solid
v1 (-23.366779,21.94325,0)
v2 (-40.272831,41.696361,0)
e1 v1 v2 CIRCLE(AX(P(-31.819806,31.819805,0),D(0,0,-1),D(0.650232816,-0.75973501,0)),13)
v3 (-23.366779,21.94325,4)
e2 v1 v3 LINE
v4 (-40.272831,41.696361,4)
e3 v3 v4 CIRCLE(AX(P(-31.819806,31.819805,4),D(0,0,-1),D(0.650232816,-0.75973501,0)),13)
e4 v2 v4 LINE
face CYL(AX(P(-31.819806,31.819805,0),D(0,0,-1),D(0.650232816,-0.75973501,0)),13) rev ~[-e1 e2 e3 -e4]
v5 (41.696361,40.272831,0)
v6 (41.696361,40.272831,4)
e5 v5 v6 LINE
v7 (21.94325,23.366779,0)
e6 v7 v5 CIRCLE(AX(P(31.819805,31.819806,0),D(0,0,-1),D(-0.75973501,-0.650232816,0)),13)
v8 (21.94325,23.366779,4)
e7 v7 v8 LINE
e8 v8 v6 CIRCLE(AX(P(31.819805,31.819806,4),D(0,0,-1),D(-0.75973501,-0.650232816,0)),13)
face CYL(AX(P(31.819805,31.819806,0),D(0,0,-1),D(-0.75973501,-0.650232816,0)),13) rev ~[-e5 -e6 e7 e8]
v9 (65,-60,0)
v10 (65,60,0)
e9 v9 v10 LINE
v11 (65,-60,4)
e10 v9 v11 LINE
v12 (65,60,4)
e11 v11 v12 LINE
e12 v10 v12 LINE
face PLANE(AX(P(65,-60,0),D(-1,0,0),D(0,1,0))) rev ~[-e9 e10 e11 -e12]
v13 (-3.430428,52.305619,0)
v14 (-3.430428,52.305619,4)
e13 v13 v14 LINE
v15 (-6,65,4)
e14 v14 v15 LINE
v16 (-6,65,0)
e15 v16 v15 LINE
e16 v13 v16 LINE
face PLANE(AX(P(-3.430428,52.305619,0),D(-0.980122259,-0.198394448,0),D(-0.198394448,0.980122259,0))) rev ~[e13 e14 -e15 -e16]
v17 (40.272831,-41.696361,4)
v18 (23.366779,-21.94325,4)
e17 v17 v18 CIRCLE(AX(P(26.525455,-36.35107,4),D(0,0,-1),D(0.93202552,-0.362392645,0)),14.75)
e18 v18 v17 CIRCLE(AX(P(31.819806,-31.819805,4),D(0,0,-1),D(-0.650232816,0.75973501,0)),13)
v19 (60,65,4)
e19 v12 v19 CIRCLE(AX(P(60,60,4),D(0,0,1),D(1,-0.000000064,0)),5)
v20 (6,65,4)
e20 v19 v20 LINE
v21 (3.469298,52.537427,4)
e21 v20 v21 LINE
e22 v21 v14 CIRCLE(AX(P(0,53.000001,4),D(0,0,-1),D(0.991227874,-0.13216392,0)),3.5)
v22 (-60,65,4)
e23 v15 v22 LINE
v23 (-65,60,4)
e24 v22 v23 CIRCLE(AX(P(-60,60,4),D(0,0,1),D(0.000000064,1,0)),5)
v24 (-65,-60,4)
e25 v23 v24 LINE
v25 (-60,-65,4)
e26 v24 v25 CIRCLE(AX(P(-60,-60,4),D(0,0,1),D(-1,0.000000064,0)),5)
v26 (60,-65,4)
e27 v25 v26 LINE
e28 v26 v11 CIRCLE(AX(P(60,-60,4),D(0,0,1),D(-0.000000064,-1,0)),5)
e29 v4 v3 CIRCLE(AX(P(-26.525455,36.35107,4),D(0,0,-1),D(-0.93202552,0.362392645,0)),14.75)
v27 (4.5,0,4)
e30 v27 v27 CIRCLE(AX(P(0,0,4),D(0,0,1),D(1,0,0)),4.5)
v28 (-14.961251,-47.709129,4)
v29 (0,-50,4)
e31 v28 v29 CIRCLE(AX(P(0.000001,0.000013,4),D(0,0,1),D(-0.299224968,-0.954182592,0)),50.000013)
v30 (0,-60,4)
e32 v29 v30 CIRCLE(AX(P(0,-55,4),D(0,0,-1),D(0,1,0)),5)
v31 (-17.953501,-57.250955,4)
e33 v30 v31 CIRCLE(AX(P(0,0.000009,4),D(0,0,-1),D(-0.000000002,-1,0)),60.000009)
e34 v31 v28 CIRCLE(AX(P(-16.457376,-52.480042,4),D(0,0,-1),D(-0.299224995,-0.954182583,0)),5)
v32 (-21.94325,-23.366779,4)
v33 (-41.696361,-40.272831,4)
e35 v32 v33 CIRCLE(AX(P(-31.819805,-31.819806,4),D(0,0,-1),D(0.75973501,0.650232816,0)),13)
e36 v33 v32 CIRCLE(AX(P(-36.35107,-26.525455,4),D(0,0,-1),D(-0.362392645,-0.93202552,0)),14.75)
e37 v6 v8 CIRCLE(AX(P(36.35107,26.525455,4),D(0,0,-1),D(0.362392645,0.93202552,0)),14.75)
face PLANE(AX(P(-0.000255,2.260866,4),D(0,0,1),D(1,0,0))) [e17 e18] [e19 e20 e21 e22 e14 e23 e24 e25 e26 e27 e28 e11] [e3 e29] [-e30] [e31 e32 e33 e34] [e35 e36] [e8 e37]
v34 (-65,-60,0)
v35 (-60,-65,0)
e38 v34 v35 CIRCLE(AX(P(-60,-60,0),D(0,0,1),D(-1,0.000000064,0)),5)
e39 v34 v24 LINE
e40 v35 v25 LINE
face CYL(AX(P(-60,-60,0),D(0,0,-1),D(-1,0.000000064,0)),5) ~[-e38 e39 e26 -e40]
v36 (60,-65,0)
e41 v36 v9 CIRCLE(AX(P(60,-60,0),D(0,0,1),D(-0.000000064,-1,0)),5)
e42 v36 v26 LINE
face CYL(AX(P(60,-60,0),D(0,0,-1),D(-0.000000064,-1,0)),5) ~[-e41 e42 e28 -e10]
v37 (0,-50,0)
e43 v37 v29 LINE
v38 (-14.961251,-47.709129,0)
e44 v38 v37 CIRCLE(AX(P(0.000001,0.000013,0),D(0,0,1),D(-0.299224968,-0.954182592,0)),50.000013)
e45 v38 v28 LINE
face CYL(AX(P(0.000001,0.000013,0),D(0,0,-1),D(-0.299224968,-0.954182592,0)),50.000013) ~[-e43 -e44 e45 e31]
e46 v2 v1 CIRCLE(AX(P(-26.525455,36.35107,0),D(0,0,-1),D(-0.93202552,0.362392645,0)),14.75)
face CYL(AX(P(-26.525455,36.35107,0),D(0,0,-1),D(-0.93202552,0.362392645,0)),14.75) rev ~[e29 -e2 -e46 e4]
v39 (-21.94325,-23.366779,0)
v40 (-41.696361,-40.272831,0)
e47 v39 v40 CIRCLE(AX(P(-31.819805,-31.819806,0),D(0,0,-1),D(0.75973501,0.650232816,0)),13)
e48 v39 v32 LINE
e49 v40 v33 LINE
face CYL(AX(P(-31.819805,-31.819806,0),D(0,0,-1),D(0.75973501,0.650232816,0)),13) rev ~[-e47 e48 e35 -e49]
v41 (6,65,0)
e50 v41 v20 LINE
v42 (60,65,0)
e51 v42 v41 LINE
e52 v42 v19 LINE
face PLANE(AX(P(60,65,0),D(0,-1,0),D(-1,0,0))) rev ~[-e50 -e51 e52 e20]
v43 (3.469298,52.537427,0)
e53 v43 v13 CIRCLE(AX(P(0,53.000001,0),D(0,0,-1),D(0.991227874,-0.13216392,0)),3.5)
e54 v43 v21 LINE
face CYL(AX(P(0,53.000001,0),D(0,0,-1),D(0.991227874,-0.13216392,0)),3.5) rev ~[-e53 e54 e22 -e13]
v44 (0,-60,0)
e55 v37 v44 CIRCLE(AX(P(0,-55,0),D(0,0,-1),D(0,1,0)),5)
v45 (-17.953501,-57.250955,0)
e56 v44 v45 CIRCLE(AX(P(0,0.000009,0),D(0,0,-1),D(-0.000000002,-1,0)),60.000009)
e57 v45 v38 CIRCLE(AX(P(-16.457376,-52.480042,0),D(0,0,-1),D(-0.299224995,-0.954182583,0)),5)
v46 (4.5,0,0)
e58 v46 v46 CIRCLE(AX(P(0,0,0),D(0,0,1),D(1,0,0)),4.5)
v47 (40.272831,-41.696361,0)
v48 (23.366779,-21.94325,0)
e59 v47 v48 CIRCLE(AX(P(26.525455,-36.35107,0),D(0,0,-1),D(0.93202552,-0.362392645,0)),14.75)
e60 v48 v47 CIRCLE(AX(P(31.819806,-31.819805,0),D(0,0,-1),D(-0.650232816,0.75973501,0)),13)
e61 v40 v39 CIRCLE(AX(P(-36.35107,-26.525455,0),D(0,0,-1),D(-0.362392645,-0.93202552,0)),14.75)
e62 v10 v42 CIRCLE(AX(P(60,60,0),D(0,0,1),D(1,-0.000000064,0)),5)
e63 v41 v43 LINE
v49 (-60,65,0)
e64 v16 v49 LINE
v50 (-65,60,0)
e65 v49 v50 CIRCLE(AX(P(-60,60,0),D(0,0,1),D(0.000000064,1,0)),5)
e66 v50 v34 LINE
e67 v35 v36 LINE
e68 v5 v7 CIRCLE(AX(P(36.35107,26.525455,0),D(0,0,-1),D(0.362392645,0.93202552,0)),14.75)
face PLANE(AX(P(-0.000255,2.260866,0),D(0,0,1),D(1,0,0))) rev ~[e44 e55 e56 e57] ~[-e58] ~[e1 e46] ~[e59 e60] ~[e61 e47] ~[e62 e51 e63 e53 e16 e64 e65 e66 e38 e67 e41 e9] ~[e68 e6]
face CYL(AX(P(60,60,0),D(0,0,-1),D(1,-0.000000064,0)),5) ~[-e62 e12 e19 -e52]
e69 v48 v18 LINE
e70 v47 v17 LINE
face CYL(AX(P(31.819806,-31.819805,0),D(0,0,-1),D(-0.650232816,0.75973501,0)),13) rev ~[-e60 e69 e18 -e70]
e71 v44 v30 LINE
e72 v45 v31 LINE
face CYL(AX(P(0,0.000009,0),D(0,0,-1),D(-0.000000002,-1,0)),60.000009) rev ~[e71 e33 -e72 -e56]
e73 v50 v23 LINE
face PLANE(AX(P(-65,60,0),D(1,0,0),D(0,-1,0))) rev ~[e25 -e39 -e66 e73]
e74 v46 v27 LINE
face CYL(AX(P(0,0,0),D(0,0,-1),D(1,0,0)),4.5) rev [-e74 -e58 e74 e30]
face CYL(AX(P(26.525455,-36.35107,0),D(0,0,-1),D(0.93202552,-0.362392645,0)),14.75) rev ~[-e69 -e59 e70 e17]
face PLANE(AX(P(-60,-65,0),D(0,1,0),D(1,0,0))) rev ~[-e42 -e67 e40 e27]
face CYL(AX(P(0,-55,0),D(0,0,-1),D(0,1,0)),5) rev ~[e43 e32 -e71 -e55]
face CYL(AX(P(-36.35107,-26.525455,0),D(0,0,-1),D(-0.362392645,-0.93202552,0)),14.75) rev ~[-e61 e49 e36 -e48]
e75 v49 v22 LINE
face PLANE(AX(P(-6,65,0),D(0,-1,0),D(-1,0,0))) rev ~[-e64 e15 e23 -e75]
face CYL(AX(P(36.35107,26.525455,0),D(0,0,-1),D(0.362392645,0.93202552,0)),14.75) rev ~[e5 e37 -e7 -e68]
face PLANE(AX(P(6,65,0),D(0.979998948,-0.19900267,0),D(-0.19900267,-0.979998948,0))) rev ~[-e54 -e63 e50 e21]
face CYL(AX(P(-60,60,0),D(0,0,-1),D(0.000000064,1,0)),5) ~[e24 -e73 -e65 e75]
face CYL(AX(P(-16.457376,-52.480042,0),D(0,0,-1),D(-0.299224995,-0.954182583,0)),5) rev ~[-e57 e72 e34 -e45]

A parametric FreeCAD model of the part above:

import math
import FreeCAD as App
import Part
import Sketcher
Q = App.Units.Quantity

doc = App.newDocument("Part")
body = doc.addObject("PartDesign::Body", "Body")

# Sketch on XY plane
sketch1 = body.newObject("Sketcher::SketchObject", "Sketch")
sketch1.AttachmentSupport = (doc.getObject("XY_Plane"), [""])
sketch1.MapMode = "FlatFace"
sketch1.addGeometry([
    Part.LineSegment(App.Vector(-6, 65, 0), App.Vector(-60, 65, 0)),  # 0
    Part.ArcOfCircle(Part.Circle(App.Vector(-60, 60, 0), App.Vector(0, 0, 1), 5), math.radians(90), math.radians(180)),  # 1
    Part.LineSegment(App.Vector(-65, 60, 0), App.Vector(-65, -60, 0)),  # 2
    Part.ArcOfCircle(Part.Circle(App.Vector(-60, -60, 0), App.Vector(0, 0, 1), 5), math.radians(180), math.radians(270)),  # 3
    Part.LineSegment(App.Vector(-60, -65, 0), App.Vector(60, -65, 0)),  # 4
    Part.ArcOfCircle(Part.Circle(App.Vector(60, -60, 0), App.Vector(0, 0, 1), 5), math.radians(-90), math.radians(0)),  # 5
    Part.LineSegment(App.Vector(65, -60, 0), App.Vector(65, 60, 0)),  # 6
    Part.ArcOfCircle(Part.Circle(App.Vector(60, 60, 0), App.Vector(0, 0, 1), 5), math.radians(0), math.radians(90)),  # 7
    Part.LineSegment(App.Vector(60, 65, 0), App.Vector(6, 65, 0)),  # 8
    Part.LineSegment(App.Vector(6, 65, 0), App.Vector(3.5, 52.5, 0)),  # 9
    Part.ArcOfCircle(Part.Circle(App.Vector(0, 53, 0), App.Vector(0, 0, 1), 3.5), math.radians(-169), math.radians(-8)),  # 10
    Part.LineSegment(App.Vector(-3.4, 52.3, 0), App.Vector(-6, 65, 0)),  # 11
    Part.ArcOfCircle(Part.Circle(App.Vector(0, 0, 0), App.Vector(0, 0, 1), 50), math.radians(-107.41), math.radians(-90)),  # 12
    Part.ArcOfCircle(Part.Circle(App.Vector(0, -55, 0), App.Vector(0, 0, 1), 5), math.radians(-90), math.radians(90)),  # 13
    Part.ArcOfCircle(Part.Circle(App.Vector(0, 0, 0), App.Vector(0, 0, 1), 60), math.radians(-107.41), math.radians(-90)),  # 14
    Part.ArcOfCircle(Part.Circle(App.Vector(-16.5, -52.5, 0), App.Vector(0, 0, 1), 5), math.radians(73), math.radians(253)),  # 15
    Part.ArcOfCircle(Part.Circle(App.Vector(-36.4, -26.5, 0), App.Vector(0, 0, 1), 14.7), math.radians(12), math.radians(249)),  # 16
    Part.ArcOfCircle(Part.Circle(App.Vector(-31.8, -31.8, 0), App.Vector(0, 0, 1), 13), math.radians(-139), math.radians(41)),  # 17
    Part.ArcOfCircle(Part.Circle(App.Vector(26.5, -36.4, 0), App.Vector(0, 0, 1), 14.7), math.radians(102), math.radians(339)),  # 18
    Part.ArcOfCircle(Part.Circle(App.Vector(31.8, -31.8, 0), App.Vector(0, 0, 1), 13), math.radians(-49), math.radians(131)),  # 19
    Part.ArcOfCircle(Part.Circle(App.Vector(-26.5, 36.4, 0), App.Vector(0, 0, 1), 14.7), math.radians(-78), math.radians(159)),  # 20
    Part.ArcOfCircle(Part.Circle(App.Vector(-31.8, 31.8, 0), App.Vector(0, 0, 1), 13), math.radians(131), math.radians(311)),  # 21
    Part.Circle(App.Vector(0, 0, 0), App.Vector(0, 0, 1), 4.5),  # 22
    Part.ArcOfCircle(Part.Circle(App.Vector(36.4, 26.5, 0), App.Vector(0, 0, 1), 14.7), math.radians(-168), math.radians(69)),  # 23
    Part.ArcOfCircle(Part.Circle(App.Vector(31.8, 31.8, 0), App.Vector(0, 0, 1), 13), math.radians(41), math.radians(221)),  # 24
], False)
sketch1.addConstraint([
    Sketcher.Constraint("Tangent", 0, 2, 1, 1),
    Sketcher.Constraint("Tangent", 1, 2, 2, 1),
    Sketcher.Constraint("Tangent", 2, 2, 3, 1),
    Sketcher.Constraint("Tangent", 3, 2, 4, 1),
    Sketcher.Constraint("Tangent", 4, 2, 5, 1),
    Sketcher.Constraint("Tangent", 5, 2, 6, 1),
    Sketcher.Constraint("Tangent", 6, 2, 7, 1),
    Sketcher.Constraint("Tangent", 7, 2, 8, 1),
    Sketcher.Constraint("Coincident", 8, 2, 9, 1),
    Sketcher.Constraint("Coincident", 9, 2, 10, 2),
    Sketcher.Constraint("Tangent", 10, 1, 11, 1),
    Sketcher.Constraint("Coincident", 11, 2, 0, 1),
    Sketcher.Constraint("Tangent", 12, 2, 13, 2),
    Sketcher.Constraint("Tangent", 13, 1, 14, 2),
    Sketcher.Constraint("Tangent", 14, 1, 15, 2),
    Sketcher.Constraint("Tangent", 15, 1, 12, 1),
    Sketcher.Constraint("Coincident", 16, 1, 17, 2),
    Sketcher.Constraint("Coincident", 17, 1, 16, 2),
    Sketcher.Constraint("Coincident", 18, 1, 19, 2),
    Sketcher.Constraint("Coincident", 19, 1, 18, 2),
    Sketcher.Constraint("Coincident", 20, 1, 21, 2),
    Sketcher.Constraint("Coincident", 21, 1, 20, 2),
    Sketcher.Constraint("Coincident", 23, 1, 24, 2),
    Sketcher.Constraint("Coincident", 24, 1, 23, 2),
    Sketcher.Constraint("Horizontal", 0),
    Sketcher.Constraint("Vertical", 2),
    Sketcher.Constraint("Horizontal", 4),
    Sketcher.Constraint("Vertical", 6),
    Sketcher.Constraint("Horizontal", 8),
    Sketcher.Constraint("Coincident", 14, 3, -1, 1),
    Sketcher.Constraint("Coincident", 22, 3, -1, 1),
    Sketcher.Constraint("Coincident", 14, 3, 12, 3),
    Sketcher.Constraint("Equal", 1, 3),
    Sketcher.Constraint("Equal", 3, 5),
    Sketcher.Constraint("Equal", 5, 7),
    Sketcher.Constraint("Equal", 7, 13),
    Sketcher.Constraint("Equal", 16, 18),
    Sketcher.Constraint("Equal", 17, 19),
    Sketcher.Constraint("Equal", 18, 20),
    Sketcher.Constraint("Equal", 19, 21),
    Sketcher.Constraint("Equal", 20, 23),
    Sketcher.Constraint("Equal", 21, 24),
    Sketcher.Constraint("Symmetric", 1, 3, 5, 3, -1, 1),
    Sketcher.Constraint("Symmetric", 18, 3, 20, 3, -1, 1),
    Sketcher.Constraint("Symmetric", 19, 3, 21, 3, -1, 1),
    Sketcher.Constraint("Symmetric", 16, 3, 23, 3, -1, 1),
    Sketcher.Constraint("Symmetric", 17, 3, 24, 3, -1, 1),
    Sketcher.Constraint("Symmetric", 17, 3, 19, 3, -2),
    Sketcher.Constraint("Symmetric", 8, 2, 11, 2, -2),
    Sketcher.Constraint("PointOnObject", 10, 3, -2),
    Sketcher.Constraint("PointOnObject", 13, 3, -2),
    Sketcher.Constraint("Horizontal", 5, 2, 13, 1),
    Sketcher.Constraint("Equal", 4, 2),
    Sketcher.Constraint("Diameter", 22, Q("9 mm")),
    Sketcher.Constraint("Radius", 1, Q("5 mm")),
    Sketcher.Constraint("Radius", 17, Q("13 mm")),
    Sketcher.Constraint("Radius", 10, Q("3.5 mm")),
    Sketcher.Constraint("DistanceX", 0, 2, 0, 1, Q("54 mm")),
    Sketcher.Constraint("DistanceX", 4, 1, 4, 2, Q("120 mm")),
    Sketcher.Constraint("Radius", 16, Q("14.75 mm")),
    Sketcher.Constraint("DistanceY", -1, 1, 10, 3, Q("53.000001 mm")),
    Sketcher.Constraint("DistanceX", 16, 1, 15, 1, Q("6.981999 mm")),
    Sketcher.Constraint("DistanceX", -1, 1, 9, 2, Q("3.469298 mm")),
    Sketcher.Constraint("DistanceX", 14, 1, -1, 1, Q("17.953501 mm")),
    Sketcher.Constraint("DistanceX", 16, 3, -1, 1, Q("36.35107 mm")),
    Sketcher.Constraint("DistanceY", 18, 3, -1, 1, Q("36.35107 mm")),
    Sketcher.Constraint("DistanceY", 16, 1, -1, 1, Q("23.366779 mm")),
    Sketcher.Constraint("DistanceX", -1, 1, 18, 1, Q("23.366779 mm")),
    Sketcher.Constraint("DistanceY", 18, 1, -1, 1, Q("21.94325 mm")),
])
pad1 = body.newObject("PartDesign::Pad", "Pad")
pad1.Profile = sketch1
pad1.Length = 4

doc.recompute()
